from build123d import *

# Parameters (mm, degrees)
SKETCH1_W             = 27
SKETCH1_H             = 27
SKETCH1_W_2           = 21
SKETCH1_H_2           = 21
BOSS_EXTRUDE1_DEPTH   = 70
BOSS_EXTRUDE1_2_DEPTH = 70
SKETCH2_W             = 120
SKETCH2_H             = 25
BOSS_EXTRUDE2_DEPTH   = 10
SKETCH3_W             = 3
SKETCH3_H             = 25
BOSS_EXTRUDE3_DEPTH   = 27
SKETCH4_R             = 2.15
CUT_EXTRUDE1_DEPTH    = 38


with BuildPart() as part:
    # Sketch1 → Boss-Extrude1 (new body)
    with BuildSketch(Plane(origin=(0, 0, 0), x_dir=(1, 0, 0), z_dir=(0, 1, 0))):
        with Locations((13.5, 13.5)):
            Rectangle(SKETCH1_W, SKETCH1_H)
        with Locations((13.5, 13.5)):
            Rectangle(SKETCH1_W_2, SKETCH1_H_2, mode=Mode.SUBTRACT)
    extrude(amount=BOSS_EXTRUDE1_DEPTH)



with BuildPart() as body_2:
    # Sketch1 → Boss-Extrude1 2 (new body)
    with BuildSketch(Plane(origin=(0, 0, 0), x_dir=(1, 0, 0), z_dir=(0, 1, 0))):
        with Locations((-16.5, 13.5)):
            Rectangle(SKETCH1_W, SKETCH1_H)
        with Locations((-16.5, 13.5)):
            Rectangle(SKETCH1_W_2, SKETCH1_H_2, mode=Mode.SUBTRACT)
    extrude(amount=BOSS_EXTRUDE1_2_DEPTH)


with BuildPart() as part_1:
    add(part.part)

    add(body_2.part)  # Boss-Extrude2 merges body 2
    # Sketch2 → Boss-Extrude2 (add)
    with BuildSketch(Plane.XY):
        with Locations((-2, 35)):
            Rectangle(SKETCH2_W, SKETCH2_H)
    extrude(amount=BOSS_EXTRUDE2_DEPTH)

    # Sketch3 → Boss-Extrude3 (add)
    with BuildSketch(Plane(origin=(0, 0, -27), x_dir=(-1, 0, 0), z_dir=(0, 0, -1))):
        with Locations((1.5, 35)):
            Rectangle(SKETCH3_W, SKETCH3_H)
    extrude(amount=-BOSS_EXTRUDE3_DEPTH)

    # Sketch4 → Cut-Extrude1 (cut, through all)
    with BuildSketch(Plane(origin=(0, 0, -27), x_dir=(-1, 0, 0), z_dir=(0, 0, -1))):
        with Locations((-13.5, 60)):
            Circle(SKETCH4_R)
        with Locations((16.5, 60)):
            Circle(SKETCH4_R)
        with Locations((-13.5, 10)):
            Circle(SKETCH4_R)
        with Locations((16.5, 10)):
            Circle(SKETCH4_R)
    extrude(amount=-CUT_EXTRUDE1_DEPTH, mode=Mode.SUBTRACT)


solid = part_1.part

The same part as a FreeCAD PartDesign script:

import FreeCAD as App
import Part
import Sketcher


def add_polygon(sketch, points):
    """Adds a closed chain of lines whose ends are joined by coincident constraints."""
    first, n = sketch.GeometryCount, len(points)
    for a, b in zip(points, points[1:] + points[:1]):
        sketch.addGeometry(Part.LineSegment(App.Vector(*a, 0), App.Vector(*b, 0)), False)
    for i in range(n):
        sketch.addConstraint(Sketcher.Constraint("Coincident", first + i, 2, first + (i + 1) % n, 1))

doc = App.newDocument("Part")
body = doc.addObject("PartDesign::Body", "Body")

# Sketch on XZ plane
sketch1 = body.newObject("Sketcher::SketchObject", "Sketch")
sketch1.AttachmentSupport = (doc.getObject("XZ_Plane"), [""])
sketch1.MapMode = "FlatFace"
add_polygon(sketch1, [(0, -27), (0, 0), (27, 0), (27, -27)])  # lines 0-3
add_polygon(sketch1, [(24, -3), (3, -3), (3, -24), (24, -24)])  # lines 4-7
sketch1.addConstraint([
    Sketcher.Constraint("Vertical", 0),
    Sketcher.Constraint("Horizontal", 1),
    Sketcher.Constraint("Vertical", 2),
    Sketcher.Constraint("Horizontal", 3),
    Sketcher.Constraint("Horizontal", 4),
    Sketcher.Constraint("Vertical", 5),
    Sketcher.Constraint("Horizontal", 6),
    Sketcher.Constraint("Vertical", 7),
    Sketcher.Constraint("Coincident", 0, 2, -1, 1),
    Sketcher.Constraint("Equal", 3, 0),
    Sketcher.Constraint("Equal", 6, 5),
    Sketcher.Constraint("DistanceX", 1, 1, 1, 2, 27.0),
    Sketcher.Constraint("DistanceX", 4, 2, 4, 1, 21.0),
    Sketcher.Constraint("DistanceX", -1, 1, 4, 2, 3.0),
    Sketcher.Constraint("DistanceY", 4, 2, -1, 1, 3.0),
])
pad1 = body.newObject("PartDesign::Pad", "Pad")
pad1.Profile = sketch1
pad1.Length = 70
pad1.Reversed = True
body2 = doc.addObject("PartDesign::Body", "Body001")

# Sketch on XZ plane
sketch2 = body2.newObject("Sketcher::SketchObject", "Sketch001")
sketch2.AttachmentSupport = (doc.getObject("XZ_Plane001"), [""])
sketch2.MapMode = "FlatFace"
add_polygon(sketch2, [(-30, -27), (-30, 0), (-3, 0), (-3, -27)])  # lines 0-3
add_polygon(sketch2, [(-6, -3), (-27, -3), (-27, -24), (-6, -24)])  # lines 4-7
sketch2.addConstraint([
    Sketcher.Constraint("Vertical", 0),
    Sketcher.Constraint("Horizontal", 1),
    Sketcher.Constraint("Vertical", 2),
    Sketcher.Constraint("Horizontal", 3),
    Sketcher.Constraint("Horizontal", 4),
    Sketcher.Constraint("Vertical", 5),
    Sketcher.Constraint("Horizontal", 6),
    Sketcher.Constraint("Vertical", 7),
    Sketcher.Constraint("PointOnObject", 0, 2, -1),
    Sketcher.Constraint("Equal", 3, 0),
    Sketcher.Constraint("Equal", 6, 5),
    Sketcher.Constraint("DistanceX", 1, 1, 1, 2, 27.0),
    Sketcher.Constraint("DistanceX", 4, 2, 4, 1, 21.0),
    Sketcher.Constraint("DistanceX", 0, 2, -1, 1, 30.0),
    Sketcher.Constraint("DistanceX", 4, 2, -1, 1, 27.0),
    Sketcher.Constraint("DistanceY", 4, 2, -1, 1, 3.0),
])
pad2 = body2.newObject("PartDesign::Pad", "Pad001")
pad2.Profile = sketch2
pad2.Length = 70
pad2.Reversed = True
body.AllowCompound = True
doc.recompute()

boolean = body.newObject("PartDesign::Boolean", "Boolean")
boolean.Type = "Fuse"
boolean.addObjects([body2])

# Sketch on XY plane
sketch3 = body.newObject("Sketcher::SketchObject", "Sketch002")
sketch3.AttachmentSupport = (doc.getObject("XY_Plane"), [""])
sketch3.MapMode = "FlatFace"
add_polygon(sketch3, [(-62, 48), (-62, 22), (58, 22), (58, 48)])  # lines 0-3
sketch3.addConstraint([
    Sketcher.Constraint("Vertical", 0),
    Sketcher.Constraint("Horizontal", 1),
    Sketcher.Constraint("Vertical", 2),
    Sketcher.Constraint("Horizontal", 3),
    Sketcher.Constraint("DistanceX", 1, 1, 1, 2, 120.0),
    Sketcher.Constraint("DistanceY", 0, 2, 0, 1, 25.0),
    Sketcher.Constraint("DistanceX", 0, 2, -1, 1, 62.0),
    Sketcher.Constraint("DistanceY", -1, 1, 0, 2, 22.5),
])
pad3 = body.newObject("PartDesign::Pad", "Pad002")
pad3.Profile = sketch3
pad3.Length = 10

# Sketch on XY plane
sketch4 = body.newObject("Sketcher::SketchObject", "Sketch003")
sketch4.AttachmentSupport = (doc.getObject("XY_Plane"), [""])
sketch4.MapMode = "FlatFace"
sketch4.AttachmentOffset = App.Placement(App.Vector(0, 0, -27), App.Rotation())
add_polygon(sketch4, [(0, 47.5), (0, 22.5), (-3, 22.5), (-3, 47.5)])  # lines 0-3
sketch4.addConstraint([
    Sketcher.Constraint("Vertical", 0),
    Sketcher.Constraint("Horizontal", 1),
    Sketcher.Constraint("Vertical", 2),
    Sketcher.Constraint("Horizontal", 3),
    Sketcher.Constraint("PointOnObject", 0, 2, -2),
    Sketcher.Constraint("DistanceX", 1, 2, 1, 1, 3.0),
    Sketcher.Constraint("DistanceY", 0, 2, 0, 1, 25.0),
    Sketcher.Constraint("DistanceY", -1, 1, 0, 2, 22.5),
])
pad4 = body.newObject("PartDesign::Pad", "Pad003")
pad4.Profile = sketch4
pad4.Length = 27

# Sketch on XY plane
sketch5 = body.newObject("Sketcher::SketchObject", "Sketch004")
sketch5.AttachmentSupport = (doc.getObject("XY_Plane"), [""])
sketch5.MapMode = "FlatFace"
sketch5.AttachmentOffset = App.Placement(App.Vector(0, 0, -27), App.Rotation())
sketch5.addGeometry([
    Part.Circle(App.Vector(13.5, 60, 0), App.Vector(0, 0, 1), 2.1),
    Part.Circle(App.Vector(-16.5, 60, 0), App.Vector(0, 0, 1), 2.1),
    Part.Circle(App.Vector(13.5, 10, 0), App.Vector(0, 0, 1), 2.1),
    Part.Circle(App.Vector(-16.5, 10, 0), App.Vector(0, 0, 1), 2.1),
], False)
sketch5.addConstraint([
    Sketcher.Constraint("Equal", 0, 1),
    Sketcher.Constraint("Equal", 1, 2),
    Sketcher.Constraint("Equal", 2, 3),
    Sketcher.Constraint("Horizontal", 0, 3, 1, 3),
    Sketcher.Constraint("Horizontal", 2, 3, 3, 3),
    Sketcher.Constraint("Vertical", 0, 3, 2, 3),
    Sketcher.Constraint("Vertical", 1, 3, 3, 3),
    Sketcher.Constraint("Diameter", 0, 4.3),
    Sketcher.Constraint("DistanceY", -1, 1, 0, 3, 60.0),
    Sketcher.Constraint("DistanceY", -1, 1, 2, 3, 10.0),
    Sketcher.Constraint("DistanceX", 1, 3, 0, 3, 30.0),
    Sketcher.Constraint("DistanceX", -1, 1, 0, 3, 13.5),
])
pocket1 = body.newObject("PartDesign::Pocket", "Pocket")
pocket1.Profile = sketch5
pocket1.Type = "ThroughAll"
pocket1.Reversed = True

doc.recompute()
